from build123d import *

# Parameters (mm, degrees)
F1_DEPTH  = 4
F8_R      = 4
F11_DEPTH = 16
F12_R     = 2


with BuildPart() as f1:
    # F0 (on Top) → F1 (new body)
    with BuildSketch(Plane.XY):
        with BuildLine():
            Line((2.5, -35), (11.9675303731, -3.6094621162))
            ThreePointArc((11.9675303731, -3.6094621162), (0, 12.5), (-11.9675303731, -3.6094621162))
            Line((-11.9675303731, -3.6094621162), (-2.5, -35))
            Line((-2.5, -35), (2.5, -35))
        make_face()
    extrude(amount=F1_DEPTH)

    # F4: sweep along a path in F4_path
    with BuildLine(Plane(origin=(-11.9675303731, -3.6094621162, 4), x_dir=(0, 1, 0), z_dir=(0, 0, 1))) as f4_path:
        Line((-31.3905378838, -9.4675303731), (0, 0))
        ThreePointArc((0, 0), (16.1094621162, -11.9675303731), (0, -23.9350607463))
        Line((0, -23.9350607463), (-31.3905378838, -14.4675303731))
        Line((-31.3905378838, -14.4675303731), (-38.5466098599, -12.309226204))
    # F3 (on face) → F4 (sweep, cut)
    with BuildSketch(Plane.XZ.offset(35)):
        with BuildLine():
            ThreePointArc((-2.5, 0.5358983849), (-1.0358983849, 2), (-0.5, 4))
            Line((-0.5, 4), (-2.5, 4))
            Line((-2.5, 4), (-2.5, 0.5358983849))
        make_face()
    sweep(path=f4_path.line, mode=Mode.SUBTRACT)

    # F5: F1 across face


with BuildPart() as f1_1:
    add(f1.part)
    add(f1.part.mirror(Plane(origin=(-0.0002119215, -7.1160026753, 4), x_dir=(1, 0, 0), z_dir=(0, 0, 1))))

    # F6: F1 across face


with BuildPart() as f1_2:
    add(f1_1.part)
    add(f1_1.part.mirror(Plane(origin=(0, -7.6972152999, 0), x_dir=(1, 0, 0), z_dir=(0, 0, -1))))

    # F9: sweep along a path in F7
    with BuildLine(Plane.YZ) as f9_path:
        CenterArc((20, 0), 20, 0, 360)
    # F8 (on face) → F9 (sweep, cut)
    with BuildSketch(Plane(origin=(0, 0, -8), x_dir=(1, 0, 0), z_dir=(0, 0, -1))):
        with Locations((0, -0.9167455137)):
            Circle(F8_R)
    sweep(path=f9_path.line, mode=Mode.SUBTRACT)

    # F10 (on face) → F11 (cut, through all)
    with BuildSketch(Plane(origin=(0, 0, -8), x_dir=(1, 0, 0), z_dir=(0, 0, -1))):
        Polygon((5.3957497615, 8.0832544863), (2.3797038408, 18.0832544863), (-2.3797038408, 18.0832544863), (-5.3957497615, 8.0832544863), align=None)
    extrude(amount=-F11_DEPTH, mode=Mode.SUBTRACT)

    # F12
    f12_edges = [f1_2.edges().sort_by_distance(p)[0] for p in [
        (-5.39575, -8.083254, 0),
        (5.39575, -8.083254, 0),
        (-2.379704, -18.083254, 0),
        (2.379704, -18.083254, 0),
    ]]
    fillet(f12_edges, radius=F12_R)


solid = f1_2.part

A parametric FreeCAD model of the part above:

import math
import FreeCAD as App
import Part
import Sketcher
from FreeCAD import Vector


def edges_at(feature, points):
    """Names of the edges that pass closest to the given points."""
    edges = feature.Shape.Edges
    near = lambda p: min(range(len(edges)), key=lambda i: edges[i].distToShape(Part.Vertex(*p))[0])
    return sorted({f"Edge{near(p) + 1}" for p in points})


def add_polygon(sketch, points):
    """Adds a closed chain of lines whose ends are joined by coincident constraints."""
    first, n = sketch.GeometryCount, len(points)
    for a, b in zip(points, points[1:] + points[:1]):
        sketch.addGeometry(Part.LineSegment(App.Vector(*a, 0), App.Vector(*b, 0)), False)
    for i in range(n):
        sketch.addConstraint(Sketcher.Constraint("Coincident", first + i, 2, first + (i + 1) % n, 1))

doc = App.newDocument("Part")
body = doc.addObject("PartDesign::Body", "Body")

sketch1 = doc.addObject("Sketcher::SketchObject", "Sketch")
body.addObject(sketch1)
sketch1.AttachmentSupport = (doc.XY_Plane, [""])
sketch1.MapMode = "FlatFace"
sketch1.addGeometry(Part.LineSegment(Vector(2, -35, 0), Vector(12, -4, 0)), False)
sketch1.addGeometry(Part.ArcOfCircle(Part.Circle(Vector(0, 0, 0), Vector(0, 0, 1), 12), math.radians(-17), math.radians(197)), False)
sketch1.addGeometry(Part.LineSegment(Vector(-12, -4, 0), Vector(-2, -35, 0)), False)
sketch1.addGeometry(Part.LineSegment(Vector(-2, -35, 0), Vector(2, -35, 0)), False)
sketch1.addConstraint(Sketcher.Constraint("Tangent", 0, 2, 1, 1))
sketch1.addConstraint(Sketcher.Constraint("Tangent", 1, 2, 2, 1))
sketch1.addConstraint(Sketcher.Constraint("Coincident", 2, 2, 3, 1))
sketch1.addConstraint(Sketcher.Constraint("Coincident", 3, 2, 0, 1))
sketch1.addConstraint(Sketcher.Constraint("Horizontal", 3))
sketch1.addConstraint(Sketcher.Constraint("Coincident", 1, 3, -1, 1))
sketch1.addConstraint(Sketcher.Constraint("Horizontal", 0, 2, 1, 2))
sketch1.addConstraint(Sketcher.Constraint("Radius", 1, 12.5))
sketch1.addConstraint(Sketcher.Constraint("DistanceX", 3, 1, 3, 2, 5.0))
sketch1.addConstraint(Sketcher.Constraint("DistanceY", 2, 2, -1, 1, 35.0))
pad1 = doc.addObject("PartDesign::Pad", "Pad")
body.addObject(pad1)
pad1.Profile = sketch1
pad1.Length = 4

sketch2 = doc.addObject("Sketcher::SketchObject", "Sketch001")
body.addObject(sketch2)
sketch2.AttachmentSupport = (doc.XZ_Plane, [""])
sketch2.MapMode = "FlatFace"
sketch2.AttachmentOffset = App.Placement(Vector(0, 0, 35), App.Rotation())
sketch2.addGeometry(Part.ArcOfCircle(Part.Circle(Vector(-4.5, 4, 0), Vector(0, 0, 1), 4), math.radians(-60), math.radians(0)), False)
sketch2.addGeometry(Part.LineSegment(Vector(-0.5, 4, 0), Vector(-2.5, 4, 0)), False)
sketch2.addGeometry(Part.LineSegment(Vector(-2.5, 4, 0), Vector(-2.5, 0.5, 0)), False)
sketch2.addConstraint(Sketcher.Constraint("Coincident", 0, 2, 1, 1))
sketch2.addConstraint(Sketcher.Constraint("Coincident", 1, 2, 2, 1))
sketch2.addConstraint(Sketcher.Constraint("Coincident", 2, 2, 0, 1))
sketch2.addConstraint(Sketcher.Constraint("Horizontal", 1))
sketch2.addConstraint(Sketcher.Constraint("Vertical", 2))
sketch2.addConstraint(Sketcher.Constraint("Radius", 0, 4.0))
sketch2.addConstraint(Sketcher.Constraint("DistanceX", 1, 2, 1, 1, 2.0))
sketch2.addConstraint(Sketcher.Constraint("DistanceY", -1, 1, 0, 3, 4.0))
sketch2.addConstraint(Sketcher.Constraint("DistanceY", -1, 1, 0, 2, 4.0))
sketch2.addConstraint(Sketcher.Constraint("DistanceX", 0, 3, -1, 1, 4.5))

sketch3 = doc.addObject("Sketcher::SketchObject", "Sketch002")
body.addObject(sketch3)
sketch3.AttachmentSupport = (doc.XY_Plane, [""])
sketch3.MapMode = "FlatFace"
sketch3.AttachmentOffset = App.Placement(Vector(0, 0, 4), App.Rotation())
sketch3.addGeometry(Part.LineSegment(Vector(-2, -35, 0), Vector(-12, -4, 0)), False)
sketch3.addGeometry(Part.ArcOfCircle(Part.Circle(Vector(0, 0, 0), Vector(0, 0, 1), 12), math.radians(-17), math.radians(197)), False)
sketch3.addGeometry(Part.LineSegment(Vector(12, -4, 0), Vector(2, -35, 0)), False)
sketch3.addGeometry(Part.LineSegment(Vector(2, -35, 0), Vector(0, -42, 0)), False)
sketch3.addConstraint(Sketcher.Constraint("Tangent", 0, 2, 1, 2))
sketch3.addConstraint(Sketcher.Constraint("Tangent", 1, 1, 2, 1))
sketch3.addConstraint(Sketcher.Constraint("Coincident", 2, 2, 3, 1))
sketch3.addConstraint(Sketcher.Constraint("Coincident", 1, 3, -1, 1))
sketch3.addConstraint(Sketcher.Constraint("Symmetric", 0, 1, 2, 2, -2))
sketch3.addConstraint(Sketcher.Constraint("Parallel", 2, 3))
sketch3.addConstraint(Sketcher.Constraint("Radius", 1, 12.5))
sketch3.addConstraint(Sketcher.Constraint("DistanceY", 0, 1, -1, 1, 35.0))
sketch3.addConstraint(Sketcher.Constraint("DistanceX", 0, 1, 2, 2, 5.0))
sketch3.addConstraint(Sketcher.Constraint("DistanceY", 3, 2, -1, 1, 42.156072))
doc.recompute()

subtractivepipe = doc.addObject("PartDesign::SubtractivePipe", "SubtractivePipe")
body.addObject(subtractivepipe)
subtractivepipe.Profile = sketch2
subtractivepipe.Spine = (sketch3, ["Edge1", "Edge2", "Edge3", "Edge4"])
body2 = doc.addObject("PartDesign::Body", "Body001")
doc.recompute()

body2.BaseFeature = body
doc.recompute()

mirroring = doc.addObject("Part::Mirroring", "Mirroring")
mirroring.Source = body
mirroring.Base = Vector(-0.000212, -7.116003, 4)
mirroring.Normal = Vector(0, 0, 1)
body3 = doc.addObject("PartDesign::Body", "Body002")
body3.BaseFeature = mirroring
boolean = doc.addObject("PartDesign::Boolean", "Boolean")
body2.addObject(boolean)
boolean.Type = "Fuse"
boolean.addObjects([body3])
doc.recompute()
body4 = doc.addObject("PartDesign::Body", "Body003")
doc.recompute()

body4.BaseFeature = body2
doc.recompute()

mirroring2 = doc.addObject("Part::Mirroring", "Mirroring001")
mirroring2.Source = body2
mirroring2.Base = Vector(0, -7.697215, 0)
mirroring2.Normal = Vector(0, 0, -1)
body5 = doc.addObject("PartDesign::Body", "Body004")
body5.BaseFeature = mirroring2
boolean2 = doc.addObject("PartDesign::Boolean", "Boolean001")
body4.addObject(boolean2)
boolean2.Type = "Fuse"
boolean2.addObjects([body5])
doc.recompute()

sketch4 = doc.addObject("Sketcher::SketchObject", "Sketch003")
body4.addObject(sketch4)
sketch4.AttachmentSupport = (doc.getObject("XY_Plane003"), [""])
sketch4.MapMode = "FlatFace"
sketch4.AttachmentOffset = App.Placement(Vector(0, 0, -8), App.Rotation())
sketch4.addGeometry(Part.Circle(Vector(0, 0.9, 0), Vector(0, 0, 1), 4), False)
sketch4.addConstraint(Sketcher.Constraint("PointOnObject", 0, 3, -2))
sketch4.addConstraint(Sketcher.Constraint("Diameter", 0, 8.0))
sketch4.addConstraint(Sketcher.Constraint("DistanceY", -1, 1, 0, 3, 0.916746))

sketch5 = doc.addObject("Sketcher::SketchObject", "Sketch004")
body4.addObject(sketch5)
sketch5.AttachmentSupport = (doc.getObject("YZ_Plane003"), [""])
sketch5.MapMode = "FlatFace"
sketch5.addGeometry(Part.Circle(Vector(20, 0, 0), Vector(0, 0, 1), 20), False)
sketch5.addConstraint(Sketcher.Constraint("PointOnObject", 0, 3, -1))
sketch5.addConstraint(Sketcher.Constraint("Diameter", 0, 40.0))
sketch5.addConstraint(Sketcher.Constraint("DistanceX", -1, 1, 0, 3, 20.0))
doc.recompute()

subtractivepipe2 = doc.addObject("PartDesign::SubtractivePipe", "SubtractivePipe001")
body4.addObject(subtractivepipe2)
subtractivepipe2.Profile = sketch4
subtractivepipe2.Spine = (sketch5, ["Edge1"])

sketch6 = doc.addObject("Sketcher::SketchObject", "Sketch005")
body4.addObject(sketch6)
sketch6.AttachmentSupport = (doc.getObject("XY_Plane003"), [""])
sketch6.MapMode = "FlatFace"
sketch6.AttachmentOffset = App.Placement(Vector(0, 0, -8), App.Rotation())
add_polygon(sketch6, [(5.4, -8.1), (2.4, -18.1), (-2.4, -18.1), (-5.4, -8.1)])
sketch6.addConstraint(Sketcher.Constraint("Horizontal", 1))
sketch6.addConstraint(Sketcher.Constraint("Horizontal", 3))
sketch6.addConstraint(Sketcher.Constraint("Equal", 0, 2))
sketch6.addConstraint(Sketcher.Constraint("DistanceY", 1, 2, 2, 2, 10.0))
sketch6.addConstraint(Sketcher.Constraint("DistanceX", 3, 1, 3, 2, 10.7915))
sketch6.addConstraint(Sketcher.Constraint("Distance", 0, 10.444929))
sketch6.addConstraint(Sketcher.Constraint("DistanceX", 2, 2, -1, 1, 5.39575))
sketch6.addConstraint(Sketcher.Constraint("DistanceY", 0, 2, -1, 1, 18.083254))
pocket1 = doc.addObject("PartDesign::Pocket", "Pocket")
body4.addObject(pocket1)
pocket1.Profile = sketch6
pocket1.Type = "ThroughAll"
pocket1.Reversed = True
doc.recompute()

fillet = doc.addObject("PartDesign::Fillet", "Fillet")
body4.addObject(fillet)
fillet.Base = (pocket1, edges_at(pocket1, [
    (-5.396, -8.083, 0),
    (5.396, -8.083, 0),
    (-2.38, -18.083, 0),
    (2.38, -18.083, 0),
]))
fillet.Radius = 2
mirroring.Visibility = False
mirroring2.Visibility = False

doc.recompute()
